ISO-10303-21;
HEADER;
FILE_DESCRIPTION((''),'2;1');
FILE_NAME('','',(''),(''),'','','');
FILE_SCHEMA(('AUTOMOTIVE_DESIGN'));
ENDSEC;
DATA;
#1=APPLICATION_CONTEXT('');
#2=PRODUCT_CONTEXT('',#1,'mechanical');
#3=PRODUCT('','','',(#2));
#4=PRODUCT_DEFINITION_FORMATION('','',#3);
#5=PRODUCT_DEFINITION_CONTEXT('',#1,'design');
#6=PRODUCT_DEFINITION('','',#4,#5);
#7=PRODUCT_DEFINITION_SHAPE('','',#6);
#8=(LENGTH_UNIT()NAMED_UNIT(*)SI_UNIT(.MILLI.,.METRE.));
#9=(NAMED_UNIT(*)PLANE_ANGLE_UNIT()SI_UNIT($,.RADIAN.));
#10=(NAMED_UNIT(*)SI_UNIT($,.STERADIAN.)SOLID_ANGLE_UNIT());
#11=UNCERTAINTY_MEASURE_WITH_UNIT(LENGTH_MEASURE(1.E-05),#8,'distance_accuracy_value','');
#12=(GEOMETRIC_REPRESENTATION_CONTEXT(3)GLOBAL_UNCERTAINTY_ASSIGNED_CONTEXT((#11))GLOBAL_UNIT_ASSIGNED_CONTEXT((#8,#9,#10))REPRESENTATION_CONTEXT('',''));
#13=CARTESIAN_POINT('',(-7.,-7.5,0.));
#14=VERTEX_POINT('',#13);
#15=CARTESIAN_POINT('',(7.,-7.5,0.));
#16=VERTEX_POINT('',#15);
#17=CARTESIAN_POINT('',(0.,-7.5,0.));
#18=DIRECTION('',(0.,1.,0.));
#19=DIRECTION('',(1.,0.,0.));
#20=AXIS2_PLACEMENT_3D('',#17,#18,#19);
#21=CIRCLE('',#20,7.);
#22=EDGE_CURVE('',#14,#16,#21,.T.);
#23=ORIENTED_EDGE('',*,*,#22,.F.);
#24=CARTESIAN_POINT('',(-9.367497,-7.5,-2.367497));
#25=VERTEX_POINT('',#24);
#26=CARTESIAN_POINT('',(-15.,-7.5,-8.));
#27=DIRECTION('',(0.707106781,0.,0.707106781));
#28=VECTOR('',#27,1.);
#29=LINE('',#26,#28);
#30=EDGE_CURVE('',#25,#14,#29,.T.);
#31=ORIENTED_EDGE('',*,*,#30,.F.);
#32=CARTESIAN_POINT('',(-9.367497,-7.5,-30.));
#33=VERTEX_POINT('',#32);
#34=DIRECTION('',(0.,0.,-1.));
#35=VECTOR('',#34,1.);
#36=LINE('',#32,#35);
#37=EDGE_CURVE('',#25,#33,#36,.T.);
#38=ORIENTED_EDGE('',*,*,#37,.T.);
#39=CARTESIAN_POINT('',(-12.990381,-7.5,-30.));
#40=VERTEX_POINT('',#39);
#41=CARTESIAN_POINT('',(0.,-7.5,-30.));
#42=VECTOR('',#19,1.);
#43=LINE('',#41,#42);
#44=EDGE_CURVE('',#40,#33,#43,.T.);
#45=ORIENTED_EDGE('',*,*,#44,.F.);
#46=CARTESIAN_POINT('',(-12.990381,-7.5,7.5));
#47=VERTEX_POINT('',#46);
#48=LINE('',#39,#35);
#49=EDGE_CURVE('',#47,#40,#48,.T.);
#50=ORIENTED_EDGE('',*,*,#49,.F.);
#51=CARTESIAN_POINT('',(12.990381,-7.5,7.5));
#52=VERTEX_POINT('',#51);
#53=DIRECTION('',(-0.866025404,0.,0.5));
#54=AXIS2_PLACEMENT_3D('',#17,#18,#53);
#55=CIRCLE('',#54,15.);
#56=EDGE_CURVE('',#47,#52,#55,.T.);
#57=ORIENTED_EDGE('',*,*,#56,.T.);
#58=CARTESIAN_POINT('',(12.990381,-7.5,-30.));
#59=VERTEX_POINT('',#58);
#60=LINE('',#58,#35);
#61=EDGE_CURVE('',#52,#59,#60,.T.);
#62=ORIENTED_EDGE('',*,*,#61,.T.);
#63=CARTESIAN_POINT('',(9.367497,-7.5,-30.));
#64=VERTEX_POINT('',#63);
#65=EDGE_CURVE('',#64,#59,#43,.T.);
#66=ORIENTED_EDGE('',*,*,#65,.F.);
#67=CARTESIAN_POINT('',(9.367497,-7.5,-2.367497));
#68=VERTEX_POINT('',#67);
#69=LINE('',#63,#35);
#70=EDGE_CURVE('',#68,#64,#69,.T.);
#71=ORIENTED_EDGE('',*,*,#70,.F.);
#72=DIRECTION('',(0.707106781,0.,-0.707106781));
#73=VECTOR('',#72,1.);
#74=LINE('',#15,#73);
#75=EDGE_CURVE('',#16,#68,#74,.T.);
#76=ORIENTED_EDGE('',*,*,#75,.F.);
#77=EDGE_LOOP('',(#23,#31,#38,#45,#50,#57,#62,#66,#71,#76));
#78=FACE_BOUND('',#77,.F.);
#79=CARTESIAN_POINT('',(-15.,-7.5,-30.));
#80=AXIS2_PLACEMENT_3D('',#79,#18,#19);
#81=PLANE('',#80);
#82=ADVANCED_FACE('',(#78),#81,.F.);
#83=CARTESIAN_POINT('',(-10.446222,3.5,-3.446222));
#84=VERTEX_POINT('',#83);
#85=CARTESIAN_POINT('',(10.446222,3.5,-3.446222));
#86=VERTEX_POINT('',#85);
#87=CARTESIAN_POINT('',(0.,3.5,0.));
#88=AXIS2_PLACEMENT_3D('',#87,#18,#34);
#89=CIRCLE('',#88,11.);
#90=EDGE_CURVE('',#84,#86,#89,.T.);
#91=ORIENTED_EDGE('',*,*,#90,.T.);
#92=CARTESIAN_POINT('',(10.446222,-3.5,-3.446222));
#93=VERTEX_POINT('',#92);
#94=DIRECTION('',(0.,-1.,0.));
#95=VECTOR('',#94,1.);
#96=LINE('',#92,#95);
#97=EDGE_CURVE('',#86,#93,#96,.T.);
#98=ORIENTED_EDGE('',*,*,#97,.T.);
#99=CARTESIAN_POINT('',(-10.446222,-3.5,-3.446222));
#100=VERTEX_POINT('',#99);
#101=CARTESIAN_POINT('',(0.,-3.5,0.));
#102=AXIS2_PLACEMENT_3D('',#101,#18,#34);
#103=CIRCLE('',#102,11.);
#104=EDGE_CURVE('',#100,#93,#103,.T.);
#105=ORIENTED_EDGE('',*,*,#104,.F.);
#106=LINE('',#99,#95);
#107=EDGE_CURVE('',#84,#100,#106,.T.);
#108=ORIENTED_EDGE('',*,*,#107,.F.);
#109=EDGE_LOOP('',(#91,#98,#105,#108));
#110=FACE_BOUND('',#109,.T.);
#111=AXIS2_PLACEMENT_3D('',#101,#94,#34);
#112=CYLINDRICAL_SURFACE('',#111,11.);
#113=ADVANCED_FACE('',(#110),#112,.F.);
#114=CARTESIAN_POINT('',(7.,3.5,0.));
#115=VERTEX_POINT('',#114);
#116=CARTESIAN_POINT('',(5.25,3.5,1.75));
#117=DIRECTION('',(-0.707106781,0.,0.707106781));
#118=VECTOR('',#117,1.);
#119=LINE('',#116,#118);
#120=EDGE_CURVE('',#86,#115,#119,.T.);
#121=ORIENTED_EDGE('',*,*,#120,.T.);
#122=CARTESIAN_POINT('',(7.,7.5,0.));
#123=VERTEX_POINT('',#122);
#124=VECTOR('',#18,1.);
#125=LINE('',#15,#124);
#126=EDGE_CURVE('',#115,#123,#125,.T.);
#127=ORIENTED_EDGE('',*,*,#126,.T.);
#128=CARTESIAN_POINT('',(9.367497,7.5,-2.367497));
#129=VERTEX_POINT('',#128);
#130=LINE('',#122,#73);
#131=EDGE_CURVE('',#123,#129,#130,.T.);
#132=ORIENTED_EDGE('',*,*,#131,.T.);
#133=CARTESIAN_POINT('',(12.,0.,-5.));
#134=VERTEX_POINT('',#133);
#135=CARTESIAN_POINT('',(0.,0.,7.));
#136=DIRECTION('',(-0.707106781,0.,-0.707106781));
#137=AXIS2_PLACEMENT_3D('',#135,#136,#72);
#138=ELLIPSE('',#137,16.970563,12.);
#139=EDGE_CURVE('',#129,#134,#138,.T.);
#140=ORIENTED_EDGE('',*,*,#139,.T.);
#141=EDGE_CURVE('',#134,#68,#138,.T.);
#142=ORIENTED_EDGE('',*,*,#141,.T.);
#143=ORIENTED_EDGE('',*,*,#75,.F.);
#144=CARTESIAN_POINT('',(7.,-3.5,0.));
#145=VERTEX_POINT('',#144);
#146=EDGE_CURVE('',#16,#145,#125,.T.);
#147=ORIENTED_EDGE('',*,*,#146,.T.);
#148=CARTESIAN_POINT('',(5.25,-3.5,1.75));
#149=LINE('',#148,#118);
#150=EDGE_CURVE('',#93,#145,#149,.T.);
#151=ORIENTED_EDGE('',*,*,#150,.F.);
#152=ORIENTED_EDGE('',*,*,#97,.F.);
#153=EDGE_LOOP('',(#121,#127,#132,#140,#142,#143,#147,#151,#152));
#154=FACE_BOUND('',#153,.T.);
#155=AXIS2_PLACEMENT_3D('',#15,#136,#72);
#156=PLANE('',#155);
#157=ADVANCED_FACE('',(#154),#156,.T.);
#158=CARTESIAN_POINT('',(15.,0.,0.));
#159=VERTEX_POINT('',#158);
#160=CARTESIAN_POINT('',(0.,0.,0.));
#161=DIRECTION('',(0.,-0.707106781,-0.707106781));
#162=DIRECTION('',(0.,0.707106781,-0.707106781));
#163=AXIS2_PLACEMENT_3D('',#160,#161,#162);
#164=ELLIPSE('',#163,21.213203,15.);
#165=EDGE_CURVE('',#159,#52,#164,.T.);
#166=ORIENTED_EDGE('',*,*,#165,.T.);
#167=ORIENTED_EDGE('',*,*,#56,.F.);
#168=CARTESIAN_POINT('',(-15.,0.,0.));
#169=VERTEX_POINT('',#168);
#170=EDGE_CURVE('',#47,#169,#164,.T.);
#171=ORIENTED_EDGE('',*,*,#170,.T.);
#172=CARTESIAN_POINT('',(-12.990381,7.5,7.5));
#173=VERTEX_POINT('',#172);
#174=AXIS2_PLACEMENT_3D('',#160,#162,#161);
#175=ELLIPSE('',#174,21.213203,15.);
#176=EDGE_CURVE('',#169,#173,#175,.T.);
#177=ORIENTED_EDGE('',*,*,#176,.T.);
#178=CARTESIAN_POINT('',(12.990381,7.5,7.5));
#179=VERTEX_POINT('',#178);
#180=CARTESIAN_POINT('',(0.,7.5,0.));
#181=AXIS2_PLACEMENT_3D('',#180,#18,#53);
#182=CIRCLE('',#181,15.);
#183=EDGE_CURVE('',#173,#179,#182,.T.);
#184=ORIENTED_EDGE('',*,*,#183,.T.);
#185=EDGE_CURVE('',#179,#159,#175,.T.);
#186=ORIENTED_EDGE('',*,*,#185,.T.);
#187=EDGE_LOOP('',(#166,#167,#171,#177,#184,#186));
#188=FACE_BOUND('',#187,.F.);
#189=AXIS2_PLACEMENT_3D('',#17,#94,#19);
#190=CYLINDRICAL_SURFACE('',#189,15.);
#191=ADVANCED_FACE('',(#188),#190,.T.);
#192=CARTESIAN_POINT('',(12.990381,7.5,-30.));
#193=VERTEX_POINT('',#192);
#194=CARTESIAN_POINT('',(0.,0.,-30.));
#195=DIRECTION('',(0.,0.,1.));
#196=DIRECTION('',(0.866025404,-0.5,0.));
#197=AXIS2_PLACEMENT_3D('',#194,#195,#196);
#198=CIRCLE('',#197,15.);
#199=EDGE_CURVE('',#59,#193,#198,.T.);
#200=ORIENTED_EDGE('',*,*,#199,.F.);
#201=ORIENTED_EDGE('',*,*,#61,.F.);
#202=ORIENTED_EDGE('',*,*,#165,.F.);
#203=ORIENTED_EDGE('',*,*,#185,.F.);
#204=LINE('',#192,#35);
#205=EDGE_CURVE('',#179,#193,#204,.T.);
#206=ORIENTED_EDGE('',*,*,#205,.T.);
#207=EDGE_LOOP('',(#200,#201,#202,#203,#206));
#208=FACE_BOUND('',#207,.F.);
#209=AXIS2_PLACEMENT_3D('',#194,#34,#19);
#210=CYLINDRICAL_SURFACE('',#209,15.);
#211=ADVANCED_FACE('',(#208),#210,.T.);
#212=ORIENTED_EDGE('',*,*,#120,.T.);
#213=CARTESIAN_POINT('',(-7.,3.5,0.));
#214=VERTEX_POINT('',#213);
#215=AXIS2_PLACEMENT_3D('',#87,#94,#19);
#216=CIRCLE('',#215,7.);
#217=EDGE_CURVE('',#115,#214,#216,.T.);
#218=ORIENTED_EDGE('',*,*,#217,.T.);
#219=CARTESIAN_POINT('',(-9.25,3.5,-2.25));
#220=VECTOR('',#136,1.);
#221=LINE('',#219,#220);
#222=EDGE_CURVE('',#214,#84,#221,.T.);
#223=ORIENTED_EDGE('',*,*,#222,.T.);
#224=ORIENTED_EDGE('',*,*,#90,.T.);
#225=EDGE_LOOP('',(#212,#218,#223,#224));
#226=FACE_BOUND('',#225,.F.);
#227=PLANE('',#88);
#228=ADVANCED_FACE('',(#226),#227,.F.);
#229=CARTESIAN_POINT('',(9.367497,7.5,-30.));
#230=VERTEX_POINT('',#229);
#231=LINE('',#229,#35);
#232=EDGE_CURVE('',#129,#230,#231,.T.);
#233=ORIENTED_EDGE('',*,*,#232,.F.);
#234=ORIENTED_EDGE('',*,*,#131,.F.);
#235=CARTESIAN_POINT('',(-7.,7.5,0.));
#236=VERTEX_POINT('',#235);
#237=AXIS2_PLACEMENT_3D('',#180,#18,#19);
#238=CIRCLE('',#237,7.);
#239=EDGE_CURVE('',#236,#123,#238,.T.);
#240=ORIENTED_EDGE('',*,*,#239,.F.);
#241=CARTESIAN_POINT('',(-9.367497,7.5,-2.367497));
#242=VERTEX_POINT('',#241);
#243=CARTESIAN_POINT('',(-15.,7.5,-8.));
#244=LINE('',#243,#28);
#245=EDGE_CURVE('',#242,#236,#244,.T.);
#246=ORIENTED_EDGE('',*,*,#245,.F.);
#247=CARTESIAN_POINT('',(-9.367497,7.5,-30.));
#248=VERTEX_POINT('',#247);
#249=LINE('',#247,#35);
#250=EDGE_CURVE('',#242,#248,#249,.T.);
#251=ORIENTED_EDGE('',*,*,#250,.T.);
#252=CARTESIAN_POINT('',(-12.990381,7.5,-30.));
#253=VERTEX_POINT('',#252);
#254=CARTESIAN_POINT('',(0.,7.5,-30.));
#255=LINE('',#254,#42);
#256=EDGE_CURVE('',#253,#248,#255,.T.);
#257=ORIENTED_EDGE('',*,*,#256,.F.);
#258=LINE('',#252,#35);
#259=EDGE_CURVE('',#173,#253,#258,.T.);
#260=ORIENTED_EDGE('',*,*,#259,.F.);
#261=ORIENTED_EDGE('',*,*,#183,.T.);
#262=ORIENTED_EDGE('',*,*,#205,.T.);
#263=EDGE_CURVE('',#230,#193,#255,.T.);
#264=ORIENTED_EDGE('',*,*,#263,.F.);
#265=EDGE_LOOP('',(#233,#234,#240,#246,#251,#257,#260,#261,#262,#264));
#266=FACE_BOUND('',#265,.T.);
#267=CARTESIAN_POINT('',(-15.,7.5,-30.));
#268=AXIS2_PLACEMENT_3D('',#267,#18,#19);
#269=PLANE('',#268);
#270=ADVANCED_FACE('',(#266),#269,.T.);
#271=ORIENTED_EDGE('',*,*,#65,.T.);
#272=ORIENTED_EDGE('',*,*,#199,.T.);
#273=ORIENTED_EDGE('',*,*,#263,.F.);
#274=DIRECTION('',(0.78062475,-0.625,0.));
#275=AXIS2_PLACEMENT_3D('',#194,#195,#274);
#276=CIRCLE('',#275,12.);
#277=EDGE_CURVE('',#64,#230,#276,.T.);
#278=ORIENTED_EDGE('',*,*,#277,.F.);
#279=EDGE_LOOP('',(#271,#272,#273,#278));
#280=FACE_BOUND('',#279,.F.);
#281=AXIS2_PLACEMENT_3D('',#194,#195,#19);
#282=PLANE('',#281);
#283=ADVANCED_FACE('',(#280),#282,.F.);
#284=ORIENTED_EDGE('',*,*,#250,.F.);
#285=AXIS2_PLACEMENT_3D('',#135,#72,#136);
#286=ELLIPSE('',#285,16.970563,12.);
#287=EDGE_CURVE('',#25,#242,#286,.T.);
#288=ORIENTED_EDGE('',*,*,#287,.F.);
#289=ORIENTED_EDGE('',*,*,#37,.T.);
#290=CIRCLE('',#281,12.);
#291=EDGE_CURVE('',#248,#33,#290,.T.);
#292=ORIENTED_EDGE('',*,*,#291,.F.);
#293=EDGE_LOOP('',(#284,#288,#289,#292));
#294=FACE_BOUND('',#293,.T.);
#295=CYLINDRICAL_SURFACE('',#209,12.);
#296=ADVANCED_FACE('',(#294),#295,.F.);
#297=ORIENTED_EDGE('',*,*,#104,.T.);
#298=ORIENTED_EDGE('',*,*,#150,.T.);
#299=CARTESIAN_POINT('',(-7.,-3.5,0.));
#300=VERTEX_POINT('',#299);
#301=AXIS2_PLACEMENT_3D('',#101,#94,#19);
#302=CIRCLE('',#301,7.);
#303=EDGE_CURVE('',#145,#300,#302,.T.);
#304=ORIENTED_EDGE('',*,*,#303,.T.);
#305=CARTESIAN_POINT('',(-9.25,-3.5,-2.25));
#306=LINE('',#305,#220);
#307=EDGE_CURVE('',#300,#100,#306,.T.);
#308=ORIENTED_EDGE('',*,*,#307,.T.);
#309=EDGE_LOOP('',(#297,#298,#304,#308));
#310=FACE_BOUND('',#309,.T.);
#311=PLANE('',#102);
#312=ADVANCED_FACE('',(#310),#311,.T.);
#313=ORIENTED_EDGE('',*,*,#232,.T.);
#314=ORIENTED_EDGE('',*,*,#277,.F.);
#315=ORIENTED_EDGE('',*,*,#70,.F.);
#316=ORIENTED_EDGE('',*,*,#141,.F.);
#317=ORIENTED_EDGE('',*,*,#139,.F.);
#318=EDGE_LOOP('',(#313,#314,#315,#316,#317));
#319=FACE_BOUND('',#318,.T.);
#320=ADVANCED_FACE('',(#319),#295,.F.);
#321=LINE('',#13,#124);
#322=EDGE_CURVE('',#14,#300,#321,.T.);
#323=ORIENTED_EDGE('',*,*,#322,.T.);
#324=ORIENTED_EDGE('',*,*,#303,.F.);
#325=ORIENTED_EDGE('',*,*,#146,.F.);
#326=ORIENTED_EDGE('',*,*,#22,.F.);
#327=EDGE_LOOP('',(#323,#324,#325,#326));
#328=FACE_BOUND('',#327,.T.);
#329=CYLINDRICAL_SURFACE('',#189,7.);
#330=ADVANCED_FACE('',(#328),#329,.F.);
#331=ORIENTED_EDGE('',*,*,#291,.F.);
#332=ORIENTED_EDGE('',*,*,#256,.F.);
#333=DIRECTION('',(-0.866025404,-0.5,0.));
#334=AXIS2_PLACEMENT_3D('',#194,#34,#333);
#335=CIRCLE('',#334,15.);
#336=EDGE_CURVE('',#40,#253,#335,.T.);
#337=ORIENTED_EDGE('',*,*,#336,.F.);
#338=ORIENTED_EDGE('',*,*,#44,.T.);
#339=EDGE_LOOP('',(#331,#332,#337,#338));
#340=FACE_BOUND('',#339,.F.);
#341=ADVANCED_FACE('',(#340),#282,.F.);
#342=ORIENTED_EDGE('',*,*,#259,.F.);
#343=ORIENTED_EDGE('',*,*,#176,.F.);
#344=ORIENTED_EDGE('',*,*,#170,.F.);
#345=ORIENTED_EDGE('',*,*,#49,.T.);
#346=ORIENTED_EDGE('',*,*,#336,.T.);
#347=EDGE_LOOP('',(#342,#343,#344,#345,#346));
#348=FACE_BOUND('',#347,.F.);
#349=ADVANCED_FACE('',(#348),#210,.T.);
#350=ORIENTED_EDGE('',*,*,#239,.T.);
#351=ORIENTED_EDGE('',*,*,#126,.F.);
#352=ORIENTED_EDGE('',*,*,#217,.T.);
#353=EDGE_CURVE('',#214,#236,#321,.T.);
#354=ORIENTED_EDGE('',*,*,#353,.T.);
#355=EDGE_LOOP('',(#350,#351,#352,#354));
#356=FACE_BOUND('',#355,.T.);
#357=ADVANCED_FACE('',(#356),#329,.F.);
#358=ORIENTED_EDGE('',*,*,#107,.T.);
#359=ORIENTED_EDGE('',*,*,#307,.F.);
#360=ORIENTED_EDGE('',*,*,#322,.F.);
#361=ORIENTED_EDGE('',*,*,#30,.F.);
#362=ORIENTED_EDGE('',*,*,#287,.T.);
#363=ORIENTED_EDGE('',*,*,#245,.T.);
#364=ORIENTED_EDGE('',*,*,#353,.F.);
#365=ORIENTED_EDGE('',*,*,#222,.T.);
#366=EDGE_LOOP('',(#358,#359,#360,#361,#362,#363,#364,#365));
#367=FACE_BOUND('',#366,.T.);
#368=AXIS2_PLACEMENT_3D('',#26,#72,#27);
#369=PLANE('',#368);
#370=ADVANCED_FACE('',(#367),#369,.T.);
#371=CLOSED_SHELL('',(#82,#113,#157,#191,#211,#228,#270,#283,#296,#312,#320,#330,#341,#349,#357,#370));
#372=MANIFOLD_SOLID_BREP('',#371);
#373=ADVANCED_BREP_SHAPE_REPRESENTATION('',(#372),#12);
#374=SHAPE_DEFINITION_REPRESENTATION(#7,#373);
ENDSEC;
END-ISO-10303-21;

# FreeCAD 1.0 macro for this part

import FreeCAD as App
import Part
import Sketcher

V = App.Vector
Q = App.Units.Quantity

doc = App.newDocument("Part")
body = doc.addObject("PartDesign::Body", "Body")

# Sketch on XY plane
sketch1 = body.newObject("Sketcher::SketchObject", "Sketch")
sketch1.AttachmentSupport = (doc.getObject("XY_Plane"), [""])
sketch1.MapMode = "FlatFace"
sketch1.addGeometry(Part.Circle(V(0, 0, 0), V(0, 0, 1), 7), False)
sketch1.addConstraint([
    Sketcher.Constraint("Coincident", 0, 3, -1, 1),
    Sketcher.Constraint("Diameter", 0, Q("14 mm")),
])
pad1 = body.newObject("PartDesign::Pad", "Pad")
pad1.Profile = sketch1
pad1.Length = 15
body2 = doc.addObject("PartDesign::Body", "Body001")
doc.recompute()

body.Placement = App.Placement(V(0, 0, 0), App.Rotation(V(1, 0, 0), 270))
boolean = body2.newObject("PartDesign::Boolean", "Boolean")
boolean.Type = "Fuse"
boolean.addObjects([body])
body3 = doc.addObject("PartDesign::Body", "Body002")
doc.recompute()

body2.Placement = App.Placement(V(0, -7.5, 0), App.Rotation(V(0, 0, 1), 0))
boolean2 = body3.newObject("PartDesign::Boolean", "Boolean001")
boolean2.Type = "Fuse"
boolean2.addObjects([body2])
body4 = doc.addObject("PartDesign::Body", "Body003")

# Sketch on XZ plane
sketch2 = body4.newObject("Sketcher::SketchObject", "Sketch001")
sketch2.AttachmentSupport = (doc.getObject("XZ_Plane003"), [""])
sketch2.MapMode = "FlatFace"
sketch2.addGeometry([
    Part.LineSegment(V(7, 0, 0), V(-7, 0, 0)),  # 0
    Part.LineSegment(V(-7, 0, 0), V(-15, -8, 0)),  # 1
    Part.LineSegment(V(-15, -8, 0), V(-15, -30, 0)),  # 2
    Part.LineSegment(V(-15, -30, 0), V(15, -30, 0)),  # 3
    Part.LineSegment(V(15, -30, 0), V(15, -8, 0)),  # 4
    Part.LineSegment(V(15, -8, 0), V(7, 0, 0)),  # 5
], False)
sketch2.addConstraint([
    Sketcher.Constraint("Coincident", 0, 2, 1, 1),
    Sketcher.Constraint("Coincident", 1, 2, 2, 1),
    Sketcher.Constraint("Coincident", 2, 2, 3, 1),
    Sketcher.Constraint("Coincident", 3, 2, 4, 1),
    Sketcher.Constraint("Coincident", 4, 2, 5, 1),
    Sketcher.Constraint("Coincident", 5, 2, 0, 1),
    Sketcher.Constraint("Horizontal", 0),
    Sketcher.Constraint("Vertical", 2),
    Sketcher.Constraint("Horizontal", 3),
    Sketcher.Constraint("Vertical", 4),
    Sketcher.Constraint("Symmetric", 0, 2, 5, 2, -1, 1),
    Sketcher.Constraint("Symmetric", 1, 2, 4, 2, -2),
    Sketcher.Constraint("Perpendicular", 1, 5),
    Sketcher.Constraint("DistanceX", 0, 2, 0, 1, Q("14 mm")),
    Sketcher.Constraint("DistanceX", 3, 1, 3, 2, Q("30 mm")),
    Sketcher.Constraint("DistanceY", 2, 2, 2, 1, Q("22 mm")),
])
pad2 = body4.newObject("PartDesign::Pad", "Pad001")
pad2.Profile = sketch2
pad2.Length = 15
pad2.Reversed = True
body5 = doc.addObject("PartDesign::Body", "Body004")
doc.recompute()

body4.Placement = App.Placement(V(0, -7.5, 0), App.Rotation(V(0, 0, 1), 0))
boolean3 = body5.newObject("PartDesign::Boolean", "Boolean002")
boolean3.Type = "Fuse"
boolean3.addObjects([body4])
body6 = doc.addObject("PartDesign::Body", "Body005")

# Sketch on XY plane
sketch3 = body6.newObject("Sketcher::SketchObject", "Sketch002")
sketch3.AttachmentSupport = (doc.getObject("XY_Plane005"), [""])
sketch3.MapMode = "FlatFace"
sketch3.AttachmentOffset = App.Placement(V(0, 0, -30), App.Rotation())
sketch3.addGeometry(Part.Circle(V(0, 0, 0), V(0, 0, 1), 12), False)
sketch3.addConstraint([
    Sketcher.Constraint("Coincident", 0, 3, -1, 1),
    Sketcher.Constraint("Diameter", 0, Q("24 mm")),
])
pad3 = body6.newObject("PartDesign::Pad", "Pad002")
pad3.Profile = sketch3
pad3.Length = 30
doc.recompute()

boolean4 = body6.newObject("PartDesign::Boolean", "Boolean003")
boolean4.Type = "Common"
boolean4.addObjects([body5])
body7 = doc.addObject("PartDesign::Body", "Body006")

# Sketch on XZ plane
sketch4 = body7.newObject("Sketcher::SketchObject", "Sketch003")
sketch4.AttachmentSupport = (doc.getObject("XZ_Plane006"), [""])
sketch4.MapMode = "FlatFace"
sketch4.AttachmentOffset = App.Placement(V(0, 0, 3.5), App.Rotation())
sketch4.addGeometry(Part.Circle(V(0, 0, 0), V(0, 0, 1), 11), False)
sketch4.addConstraint([
    Sketcher.Constraint("Coincident", 0, 3, -1, 1),
    Sketcher.Constraint("Diameter", 0, Q("22 mm")),
])
pad4 = body7.newObject("PartDesign::Pad", "Pad003")
pad4.Profile = sketch4
pad4.Length = 7
pad4.Reversed = True
doc.recompute()

boolean5 = body7.newObject("PartDesign::Boolean", "Boolean004")
boolean5.Type = "Fuse"
boolean5.addObjects([body3])
doc.recompute()

boolean6 = body7.newObject("PartDesign::Boolean", "Boolean005")
boolean6.Type = "Fuse"
boolean6.addObjects([body6])
body8 = doc.addObject("PartDesign::Body", "Body007")

# Sketch on XY plane
sketch5 = body8.newObject("Sketcher::SketchObject", "Sketch004")
sketch5.AttachmentSupport = (doc.getObject("XY_Plane007"), [""])
sketch5.MapMode = "FlatFace"
sketch5.AttachmentOffset = App.Placement(V(0, 0, -30), App.Rotation())
sketch5.addGeometry([
    Part.LineSegment(V(-15, 7.5, 0), V(-15, -7.5, 0)),
    Part.LineSegment(V(-15, -7.5, 0), V(15, -7.5, 0)),
    Part.LineSegment(V(15, -7.5, 0), V(15, 7.5, 0)),
    Part.LineSegment(V(15, 7.5, 0), V(-15, 7.5, 0)),
], False)
sketch5.addConstraint([
    Sketcher.Constraint("Coincident", 0, 2, 1, 1),
    Sketcher.Constraint("Coincident", 1, 2, 2, 1),
    Sketcher.Constraint("Coincident", 2, 2, 3, 1),
    Sketcher.Constraint("Coincident", 3, 2, 0, 1),
    Sketcher.Constraint("Vertical", 0),
    Sketcher.Constraint("Horizontal", 1),
    Sketcher.Constraint("Vertical", 2),
    Sketcher.Constraint("Horizontal", 3),
    Sketcher.Constraint("Symmetric", 0, 2, 2, 2, -1, 1),
    Sketcher.Constraint("DistanceX", 1, 1, 1, 2, Q("30 mm")),
    Sketcher.Constraint("DistanceY", 0, 2, 0, 1, Q("15 mm")),
])
pad5 = body8.newObject("PartDesign::Pad", "Pad004")
pad5.Profile = sketch5
pad5.Length = 30
body9 = doc.addObject("PartDesign::Body", "Body008")

# Sketch on XY plane
sketch6 = body9.newObject("Sketcher::SketchObject", "Sketch005")
sketch6.AttachmentSupport = (doc.getObject("XY_Plane008"), [""])
sketch6.MapMode = "FlatFace"
sketch6.addGeometry(Part.Circle(V(0, 0, 0), V(0, 0, 1), 15), False)
sketch6.addConstraint([
    Sketcher.Constraint("Coincident", 0, 3, -1, 1),
    Sketcher.Constraint("Diameter", 0, Q("30 mm")),
])
pad6 = body9.newObject("PartDesign::Pad", "Pad005")
pad6.Profile = sketch6
pad6.Length = 15
body10 = doc.addObject("PartDesign::Body", "Body009")
doc.recompute()

body9.Placement = App.Placement(V(0, 0, 0), App.Rotation(V(1, 0, 0), 270))
boolean7 = body10.newObject("PartDesign::Boolean", "Boolean006")
boolean7.Type = "Fuse"
boolean7.addObjects([body9])
body11 = doc.addObject("PartDesign::Body", "Body010")
doc.recompute()

body10.Placement = App.Placement(V(0, -7.5, 0), App.Rotation(V(0, 0, 1), 0))
boolean8 = body11.newObject("PartDesign::Boolean", "Boolean007")
boolean8.Type = "Fuse"
boolean8.addObjects([body10])
doc.recompute()

boolean9 = body11.newObject("PartDesign::Boolean", "Boolean008")
boolean9.Type = "Fuse"
boolean9.addObjects([body8])
doc.recompute()

boolean10 = body11.newObject("PartDesign::Boolean", "Boolean009")
boolean10.Type = "Cut"
boolean10.addObjects([body7])
body12 = doc.addObject("PartDesign::Body", "Body011")

# Sketch on XY plane
sketch7 = body12.newObject("Sketcher::SketchObject", "Sketch006")
sketch7.AttachmentSupport = (doc.getObject("XY_Plane011"), [""])
sketch7.MapMode = "FlatFace"
sketch7.AttachmentOffset = App.Placement(V(0, 0, -30), App.Rotation())
sketch7.addGeometry(Part.Circle(V(0, 0, 0), V(0, 0, 1), 15), False)
sketch7.addConstraint([
    Sketcher.Constraint("Coincident", 0, 3, -1, 1),
    Sketcher.Constraint("Diameter", 0, Q("30 mm")),
])
pad7 = body12.newObject("PartDesign::Pad", "Pad006")
pad7.Profile = sketch7
pad7.Length = 45
doc.recompute()

boolean11 = body12.newObject("PartDesign::Boolean", "Boolean010")
boolean11.Type = "Common"
boolean11.addObjects([body11])

doc.recompute()
